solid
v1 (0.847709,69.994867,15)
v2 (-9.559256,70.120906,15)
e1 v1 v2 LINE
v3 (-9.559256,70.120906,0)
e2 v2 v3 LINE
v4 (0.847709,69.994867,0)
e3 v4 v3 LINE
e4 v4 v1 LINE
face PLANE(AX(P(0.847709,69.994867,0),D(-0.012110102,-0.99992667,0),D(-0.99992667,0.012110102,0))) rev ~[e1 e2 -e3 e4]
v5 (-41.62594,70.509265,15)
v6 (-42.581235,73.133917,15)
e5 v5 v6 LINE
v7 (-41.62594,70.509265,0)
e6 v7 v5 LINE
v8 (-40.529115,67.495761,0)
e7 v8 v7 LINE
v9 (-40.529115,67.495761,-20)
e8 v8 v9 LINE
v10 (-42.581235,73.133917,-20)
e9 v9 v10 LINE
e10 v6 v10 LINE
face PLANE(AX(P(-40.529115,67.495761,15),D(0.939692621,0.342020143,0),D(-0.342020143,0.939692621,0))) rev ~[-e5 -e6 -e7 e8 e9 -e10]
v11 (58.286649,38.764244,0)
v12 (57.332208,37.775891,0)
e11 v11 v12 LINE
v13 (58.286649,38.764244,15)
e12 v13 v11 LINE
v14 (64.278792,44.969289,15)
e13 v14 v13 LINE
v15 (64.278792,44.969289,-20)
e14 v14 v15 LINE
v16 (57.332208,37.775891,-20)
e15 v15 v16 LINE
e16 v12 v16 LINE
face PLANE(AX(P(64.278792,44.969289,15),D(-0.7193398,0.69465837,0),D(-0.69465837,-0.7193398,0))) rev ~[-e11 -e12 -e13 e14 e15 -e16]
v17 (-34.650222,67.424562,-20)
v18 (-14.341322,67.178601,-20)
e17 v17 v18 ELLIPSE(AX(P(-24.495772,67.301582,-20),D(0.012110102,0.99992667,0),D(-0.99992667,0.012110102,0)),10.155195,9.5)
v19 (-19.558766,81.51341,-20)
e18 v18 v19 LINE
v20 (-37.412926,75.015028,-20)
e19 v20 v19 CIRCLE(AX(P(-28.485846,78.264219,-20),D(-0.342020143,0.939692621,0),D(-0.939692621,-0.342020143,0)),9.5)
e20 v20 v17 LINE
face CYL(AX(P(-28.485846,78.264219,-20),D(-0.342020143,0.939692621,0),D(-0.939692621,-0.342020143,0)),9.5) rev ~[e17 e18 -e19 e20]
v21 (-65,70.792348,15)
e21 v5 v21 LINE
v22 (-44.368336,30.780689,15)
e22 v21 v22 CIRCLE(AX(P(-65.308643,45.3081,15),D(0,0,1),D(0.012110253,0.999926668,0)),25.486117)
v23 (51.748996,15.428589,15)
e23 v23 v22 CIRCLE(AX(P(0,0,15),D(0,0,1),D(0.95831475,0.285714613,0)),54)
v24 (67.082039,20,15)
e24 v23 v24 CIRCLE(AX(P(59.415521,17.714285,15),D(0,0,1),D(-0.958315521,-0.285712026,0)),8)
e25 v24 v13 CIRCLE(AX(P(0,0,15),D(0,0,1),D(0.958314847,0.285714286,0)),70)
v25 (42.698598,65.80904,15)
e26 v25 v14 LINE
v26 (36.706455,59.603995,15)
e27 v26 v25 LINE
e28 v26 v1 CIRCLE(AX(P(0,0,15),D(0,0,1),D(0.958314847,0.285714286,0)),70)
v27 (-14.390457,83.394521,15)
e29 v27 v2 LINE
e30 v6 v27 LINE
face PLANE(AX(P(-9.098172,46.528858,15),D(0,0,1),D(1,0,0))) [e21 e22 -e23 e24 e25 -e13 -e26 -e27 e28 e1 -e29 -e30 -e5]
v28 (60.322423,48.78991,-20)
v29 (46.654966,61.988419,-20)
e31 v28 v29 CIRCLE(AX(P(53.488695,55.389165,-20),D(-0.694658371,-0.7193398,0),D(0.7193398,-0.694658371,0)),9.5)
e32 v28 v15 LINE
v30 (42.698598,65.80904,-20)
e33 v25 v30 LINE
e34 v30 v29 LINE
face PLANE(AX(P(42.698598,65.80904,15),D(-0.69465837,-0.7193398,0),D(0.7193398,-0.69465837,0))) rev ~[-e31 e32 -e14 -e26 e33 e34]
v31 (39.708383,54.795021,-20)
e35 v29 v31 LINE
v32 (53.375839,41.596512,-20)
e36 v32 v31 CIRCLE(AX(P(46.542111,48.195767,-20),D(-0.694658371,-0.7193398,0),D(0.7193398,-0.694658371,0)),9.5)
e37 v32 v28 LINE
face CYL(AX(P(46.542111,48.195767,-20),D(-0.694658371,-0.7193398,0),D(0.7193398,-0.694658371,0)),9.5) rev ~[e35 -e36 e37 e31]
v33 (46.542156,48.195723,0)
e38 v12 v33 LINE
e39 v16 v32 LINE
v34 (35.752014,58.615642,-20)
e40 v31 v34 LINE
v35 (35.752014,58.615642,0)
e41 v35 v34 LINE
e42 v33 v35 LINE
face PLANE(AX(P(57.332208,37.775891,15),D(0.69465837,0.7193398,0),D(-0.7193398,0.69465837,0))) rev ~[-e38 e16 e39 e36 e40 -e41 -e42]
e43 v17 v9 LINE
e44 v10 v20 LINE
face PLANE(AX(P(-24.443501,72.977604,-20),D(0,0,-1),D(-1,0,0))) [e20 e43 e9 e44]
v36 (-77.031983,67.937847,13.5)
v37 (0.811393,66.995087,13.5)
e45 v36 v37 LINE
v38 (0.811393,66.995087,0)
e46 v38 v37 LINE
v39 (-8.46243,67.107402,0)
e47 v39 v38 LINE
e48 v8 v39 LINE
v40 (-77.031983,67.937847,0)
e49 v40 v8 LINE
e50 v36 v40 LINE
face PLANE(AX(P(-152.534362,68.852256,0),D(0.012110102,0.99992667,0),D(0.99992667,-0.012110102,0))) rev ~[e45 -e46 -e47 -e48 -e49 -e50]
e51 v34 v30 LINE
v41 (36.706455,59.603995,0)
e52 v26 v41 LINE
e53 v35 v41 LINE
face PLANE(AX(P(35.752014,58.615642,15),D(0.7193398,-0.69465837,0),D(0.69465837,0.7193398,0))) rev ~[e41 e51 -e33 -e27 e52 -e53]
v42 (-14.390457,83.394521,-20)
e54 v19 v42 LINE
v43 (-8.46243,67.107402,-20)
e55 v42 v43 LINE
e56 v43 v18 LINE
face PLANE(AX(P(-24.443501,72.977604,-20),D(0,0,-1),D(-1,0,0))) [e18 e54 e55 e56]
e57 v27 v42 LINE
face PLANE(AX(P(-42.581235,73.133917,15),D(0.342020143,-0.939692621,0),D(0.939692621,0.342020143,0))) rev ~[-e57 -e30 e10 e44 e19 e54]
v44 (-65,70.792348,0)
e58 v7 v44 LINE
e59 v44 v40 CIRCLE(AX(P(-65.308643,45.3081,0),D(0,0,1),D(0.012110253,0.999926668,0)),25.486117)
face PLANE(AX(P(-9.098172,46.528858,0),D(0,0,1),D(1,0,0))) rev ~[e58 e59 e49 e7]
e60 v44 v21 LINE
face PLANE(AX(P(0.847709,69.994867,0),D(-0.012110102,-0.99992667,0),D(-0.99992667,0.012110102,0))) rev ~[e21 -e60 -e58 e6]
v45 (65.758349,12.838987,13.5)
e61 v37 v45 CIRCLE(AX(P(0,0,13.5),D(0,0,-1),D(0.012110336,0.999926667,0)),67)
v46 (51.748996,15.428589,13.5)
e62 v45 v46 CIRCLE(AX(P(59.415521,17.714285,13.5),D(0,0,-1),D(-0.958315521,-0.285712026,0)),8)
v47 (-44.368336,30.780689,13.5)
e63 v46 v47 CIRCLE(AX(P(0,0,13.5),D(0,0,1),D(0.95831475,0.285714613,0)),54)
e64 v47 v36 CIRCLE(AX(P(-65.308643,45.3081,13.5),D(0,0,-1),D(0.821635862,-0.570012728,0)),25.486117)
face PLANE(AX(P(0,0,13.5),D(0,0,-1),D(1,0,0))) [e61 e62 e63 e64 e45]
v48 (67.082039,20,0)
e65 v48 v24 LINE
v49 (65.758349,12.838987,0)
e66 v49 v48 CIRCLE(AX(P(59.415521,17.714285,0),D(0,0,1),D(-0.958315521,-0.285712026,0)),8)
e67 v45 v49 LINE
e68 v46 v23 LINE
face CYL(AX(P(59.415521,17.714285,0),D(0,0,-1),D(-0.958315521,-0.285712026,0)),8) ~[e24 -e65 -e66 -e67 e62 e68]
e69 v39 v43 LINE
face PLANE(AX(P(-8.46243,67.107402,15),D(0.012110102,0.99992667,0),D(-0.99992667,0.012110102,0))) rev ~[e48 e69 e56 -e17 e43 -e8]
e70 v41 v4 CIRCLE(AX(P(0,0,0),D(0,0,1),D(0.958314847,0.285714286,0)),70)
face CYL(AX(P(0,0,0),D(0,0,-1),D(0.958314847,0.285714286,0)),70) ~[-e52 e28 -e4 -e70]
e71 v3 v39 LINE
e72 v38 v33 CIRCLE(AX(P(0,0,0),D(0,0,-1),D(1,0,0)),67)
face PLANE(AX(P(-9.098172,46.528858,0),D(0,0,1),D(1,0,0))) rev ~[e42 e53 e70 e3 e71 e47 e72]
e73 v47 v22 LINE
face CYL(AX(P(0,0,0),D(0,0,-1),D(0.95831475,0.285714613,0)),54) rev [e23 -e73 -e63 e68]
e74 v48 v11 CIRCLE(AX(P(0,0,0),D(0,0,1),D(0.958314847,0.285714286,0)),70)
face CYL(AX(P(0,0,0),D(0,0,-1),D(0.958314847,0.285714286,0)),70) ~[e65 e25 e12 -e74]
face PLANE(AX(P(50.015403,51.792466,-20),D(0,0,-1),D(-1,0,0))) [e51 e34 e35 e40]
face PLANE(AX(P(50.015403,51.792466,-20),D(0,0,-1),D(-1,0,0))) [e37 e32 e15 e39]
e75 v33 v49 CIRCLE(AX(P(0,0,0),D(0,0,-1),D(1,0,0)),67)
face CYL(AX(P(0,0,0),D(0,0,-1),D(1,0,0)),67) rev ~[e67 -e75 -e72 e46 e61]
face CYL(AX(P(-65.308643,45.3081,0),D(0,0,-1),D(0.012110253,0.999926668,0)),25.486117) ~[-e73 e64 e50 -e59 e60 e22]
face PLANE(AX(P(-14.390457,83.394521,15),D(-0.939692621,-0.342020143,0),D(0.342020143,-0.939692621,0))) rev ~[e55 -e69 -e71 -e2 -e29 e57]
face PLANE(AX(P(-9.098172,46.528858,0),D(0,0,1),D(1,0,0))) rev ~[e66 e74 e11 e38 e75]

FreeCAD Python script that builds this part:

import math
import FreeCAD as App
import Part
import Sketcher
Q = App.Units.Quantity

doc = App.newDocument("Part")
body = doc.addObject("PartDesign::Body", "Body")

# Sketch on XY plane
sketch1 = doc.addObject("Sketcher::SketchObject", "Sketch")
body.addObject(sketch1)
sketch1.AttachmentSupport = (doc.XY_Plane, [""])
sketch1.MapMode = "FlatFace"
sketch1.addGeometry([
    Part.ArcOfCircle(Part.Circle(App.Vector(0, 0, 0), App.Vector(0, 0, 1), 70), math.radians(17), math.radians(89)),  # 0
    Part.LineSegment(App.Vector(1, 70, 0), App.Vector(-65, 71, 0)),  # 1
    Part.ArcOfCircle(Part.Circle(App.Vector(-65, 45, 0), App.Vector(0, 0, 1), 25), math.radians(89), math.radians(325)),  # 2
    Part.ArcOfCircle(Part.Circle(App.Vector(0, 0, 0), App.Vector(0, 0, 1), 54), math.radians(17), math.radians(145)),  # 3
    Part.ArcOfCircle(Part.Circle(App.Vector(59, 18, 0), App.Vector(0, 0, 1), 8), math.radians(-163), math.radians(17)),  # 4
], False)
sketch1.addConstraint([
    Sketcher.Constraint("Tangent", 0, 2, 1, 1),
    Sketcher.Constraint("Tangent", 1, 2, 2, 1),
    Sketcher.Constraint("Tangent", 2, 2, 3, 2),
    Sketcher.Constraint("Coincident", 3, 1, 4, 1),
    Sketcher.Constraint("Tangent", 4, 2, 0, 1),
    Sketcher.Constraint("Coincident", 0, 3, -1, 1),
    Sketcher.Constraint("Coincident", 3, 3, -1, 1),
    Sketcher.Constraint("Radius", 0, 70.0),
    Sketcher.Constraint("Radius", 3, 54.0),
    Sketcher.Constraint("DistanceX", 1, 2, -1, 1, 65.0),
    Sketcher.Constraint("DistanceY", -1, 1, 4, 2, 20.0),
    Sketcher.Constraint("Radius", 2, 25.486117),
    Sketcher.Constraint("DistanceY", 3, 1, 2, 2, 15.3521),
])
pad1 = doc.addObject("PartDesign::Pad", "Pad")
body.addObject(pad1)
pad1.Profile = sketch1
pad1.Length = 15

# Sketch on XY plane
sketch2 = doc.addObject("Sketcher::SketchObject", "Sketch001")
body.addObject(sketch2)
sketch2.AttachmentSupport = (doc.XY_Plane, [""])
sketch2.MapMode = "FlatFace"
sketch2.addGeometry(Part.Circle(App.Vector(0, 0, 0), App.Vector(0, 0, 1), 67), False)
sketch2.addConstraint([
    Sketcher.Constraint("Coincident", 0, 3, -1, 1),
    Sketcher.Constraint("Diameter", 0, 134.0),
])
pocket1 = doc.addObject("PartDesign::Pocket", "Pocket")
body.addObject(pocket1)
pocket1.Profile = sketch2
pocket1.Length = 13.5
pocket1.Reversed = True

# Sketch on XY plane
sketch3 = doc.addObject("Sketcher::SketchObject", "Sketch002")
body.addObject(sketch3)
sketch3.AttachmentSupport = (doc.XY_Plane, [""])
sketch3.MapMode = "FlatFace"
sketch3.addGeometry([
    Part.LineSegment(App.Vector(-153, 69, 0), App.Vector(1, 67, 0)),
    Part.LineSegment(App.Vector(1, 67, 0), App.Vector(-35, -36, 0)),
    Part.LineSegment(App.Vector(-35, -36, 0), App.Vector(-153, 69, 0)),
], False)
sketch3.addConstraint([
    Sketcher.Constraint("Coincident", 0, 2, 1, 1),
    Sketcher.Constraint("Coincident", 1, 2, 2, 1),
    Sketcher.Constraint("Coincident", 2, 2, 0, 1),
    Sketcher.Constraint("Distance", 0, 153.357),
    Sketcher.Constraint("DistanceX", 1, 2, -1, 1, 35.4631),
    Sketcher.Constraint("DistanceY", 1, 2, -1, 1, 35.7409),
    Sketcher.Constraint("Distance", 2, 156.988562),
    Sketcher.Constraint("DistanceX", 2, 2, -1, 1, 152.534362),
    Sketcher.Constraint("DistanceY", 0, 2, 2, 2, 1.857169),
])
pocket2 = doc.addObject("PartDesign::Pocket", "Pocket001")
body.addObject(pocket2)
pocket2.Profile = sketch3
pocket2.Length = 13.5
pocket2.Reversed = True

# Sketch on XY plane
sketch4 = doc.addObject("Sketcher::SketchObject", "Sketch003")
body.addObject(sketch4)
sketch4.AttachmentSupport = (doc.XY_Plane, [""])
sketch4.MapMode = "FlatFace"
sketch4.AttachmentOffset = App.Placement(App.Vector(0, 0, 15), App.Rotation())
sketch4.addGeometry([
    Part.LineSegment(App.Vector(43, 66, 0), App.Vector(36, 59, 0)),
    Part.LineSegment(App.Vector(36, 59, 0), App.Vector(57, 38, 0)),
    Part.LineSegment(App.Vector(57, 38, 0), App.Vector(64, 45, 0)),
    Part.LineSegment(App.Vector(64, 45, 0), App.Vector(43, 66, 0)),
], False)
sketch4.addConstraint([
    Sketcher.Constraint("Coincident", 0, 2, 1, 1),
    Sketcher.Constraint("Coincident", 1, 2, 2, 1),
    Sketcher.Constraint("Coincident", 2, 2, 3, 1),
    Sketcher.Constraint("Coincident", 3, 2, 0, 1),
    Sketcher.Constraint("Perpendicular", 0, 1),
    Sketcher.Constraint("Perpendicular", 1, 2),
    Sketcher.Constraint("Perpendicular", 2, 3),
    Sketcher.Constraint("Angle", 0, Q("-134 deg")),
    Sketcher.Constraint("Distance", 0, 10.0),
    Sketcher.Constraint("Distance", 1, 30.0),
    Sketcher.Constraint("DistanceY", -1, 1, 1, 2, 37.775891),
    Sketcher.Constraint("DistanceX", -1, 1, 2, 2, 64.278792),
])
pad2 = doc.addObject("PartDesign::Pad", "Pad001")
body.addObject(pad2)
pad2.Profile = sketch4
pad2.Length = 35
pad2.Reversed = True

# Sketch on XY plane
sketch5 = doc.addObject("Sketcher::SketchObject", "Sketch004")
body.addObject(sketch5)
sketch5.AttachmentSupport = (doc.XY_Plane, [""])
sketch5.MapMode = "FlatFace"
sketch5.AttachmentOffset = App.Placement(App.Vector(0, 0, 15), App.Rotation())
sketch5.addGeometry([
    Part.LineSegment(App.Vector(-43, 73, 0), App.Vector(-41, 67, 0)),
    Part.LineSegment(App.Vector(-41, 67, 0), App.Vector(-8, 67, 0)),
    Part.LineSegment(App.Vector(-8, 67, 0), App.Vector(-14, 83, 0)),
    Part.LineSegment(App.Vector(-14, 83, 0), App.Vector(-43, 73, 0)),
], False)
sketch5.addConstraint([
    Sketcher.Constraint("Coincident", 0, 2, 1, 1),
    Sketcher.Constraint("Coincident", 1, 2, 2, 1),
    Sketcher.Constraint("Coincident", 2, 2, 3, 1),
    Sketcher.Constraint("Coincident", 3, 2, 0, 1),
    Sketcher.Constraint("Parallel", 0, 2),
    Sketcher.Constraint("Perpendicular", 2, 3),
    Sketcher.Constraint("Angle", 0, Q("-70 deg")),
    Sketcher.Constraint("Distance", 0, 6.0),
    Sketcher.Constraint("Distance", 3, 30.0),
    Sketcher.Constraint("DistanceY", -1, 1, 1, 2, 67.107402),
    Sketcher.Constraint("Distance", 2, 17.33239),
    Sketcher.Constraint("DistanceX", 1, 2, -1, 1, 8.46243),
])
pad3 = doc.addObject("PartDesign::Pad", "Pad002")
body.addObject(pad3)
pad3.Profile = sketch5
pad3.Length = 35
pad3.Reversed = True

# Sketch on an angled plane
sketch6 = doc.addObject("Sketcher::SketchObject", "Sketch005")
body.addObject(sketch6)
sketch6.Placement = App.Placement(App.Vector(46.542111, 48.195767, 0), App.Rotation(App.Vector(0.7193398, -0.69465837, 0), App.Vector(0, 0, 0.999999999), App.Vector(-0.69465837, -0.7193398, 0), "ZXY"))
sketch6.addGeometry(Part.Circle(App.Vector(0, -20, 0), App.Vector(0, 0, 1), 10), False)
sketch6.addConstraint([
    Sketcher.Constraint("PointOnObject", 0, 3, -2),
    Sketcher.Constraint("Diameter", 0, 19.0),
    Sketcher.Constraint("DistanceY", 0, 3, -1, 1, 20.0),
])
pocket3 = doc.addObject("PartDesign::Pocket", "Pocket002")
body.addObject(pocket3)
pocket3.Profile = sketch6
pocket3.Type = "ThroughAll"

# Sketch on an angled plane
sketch7 = doc.addObject("Sketcher::SketchObject", "Sketch006")
body.addObject(sketch7)
sketch7.Placement = App.Placement(App.Vector(-28.485846, 78.264219, 0), App.Rotation(App.Vector(-0.939692621, -0.342020143, 0), App.Vector(0, 0, 1), App.Vector(-0.342020143, 0.939692621, 0), "ZXY"))
sketch7.addGeometry(Part.Circle(App.Vector(0, -20, 0), App.Vector(0, 0, 1), 10), False)
sketch7.addConstraint([
    Sketcher.Constraint("PointOnObject", 0, 3, -2),
    Sketcher.Constraint("Diameter", 0, 19.0),
    Sketcher.Constraint("DistanceY", 0, 3, -1, 1, 20.0),
])
pocket4 = doc.addObject("PartDesign::Pocket", "Pocket003")
body.addObject(pocket4)
pocket4.Profile = sketch7
pocket4.Type = "ThroughAll"

doc.recompute()
